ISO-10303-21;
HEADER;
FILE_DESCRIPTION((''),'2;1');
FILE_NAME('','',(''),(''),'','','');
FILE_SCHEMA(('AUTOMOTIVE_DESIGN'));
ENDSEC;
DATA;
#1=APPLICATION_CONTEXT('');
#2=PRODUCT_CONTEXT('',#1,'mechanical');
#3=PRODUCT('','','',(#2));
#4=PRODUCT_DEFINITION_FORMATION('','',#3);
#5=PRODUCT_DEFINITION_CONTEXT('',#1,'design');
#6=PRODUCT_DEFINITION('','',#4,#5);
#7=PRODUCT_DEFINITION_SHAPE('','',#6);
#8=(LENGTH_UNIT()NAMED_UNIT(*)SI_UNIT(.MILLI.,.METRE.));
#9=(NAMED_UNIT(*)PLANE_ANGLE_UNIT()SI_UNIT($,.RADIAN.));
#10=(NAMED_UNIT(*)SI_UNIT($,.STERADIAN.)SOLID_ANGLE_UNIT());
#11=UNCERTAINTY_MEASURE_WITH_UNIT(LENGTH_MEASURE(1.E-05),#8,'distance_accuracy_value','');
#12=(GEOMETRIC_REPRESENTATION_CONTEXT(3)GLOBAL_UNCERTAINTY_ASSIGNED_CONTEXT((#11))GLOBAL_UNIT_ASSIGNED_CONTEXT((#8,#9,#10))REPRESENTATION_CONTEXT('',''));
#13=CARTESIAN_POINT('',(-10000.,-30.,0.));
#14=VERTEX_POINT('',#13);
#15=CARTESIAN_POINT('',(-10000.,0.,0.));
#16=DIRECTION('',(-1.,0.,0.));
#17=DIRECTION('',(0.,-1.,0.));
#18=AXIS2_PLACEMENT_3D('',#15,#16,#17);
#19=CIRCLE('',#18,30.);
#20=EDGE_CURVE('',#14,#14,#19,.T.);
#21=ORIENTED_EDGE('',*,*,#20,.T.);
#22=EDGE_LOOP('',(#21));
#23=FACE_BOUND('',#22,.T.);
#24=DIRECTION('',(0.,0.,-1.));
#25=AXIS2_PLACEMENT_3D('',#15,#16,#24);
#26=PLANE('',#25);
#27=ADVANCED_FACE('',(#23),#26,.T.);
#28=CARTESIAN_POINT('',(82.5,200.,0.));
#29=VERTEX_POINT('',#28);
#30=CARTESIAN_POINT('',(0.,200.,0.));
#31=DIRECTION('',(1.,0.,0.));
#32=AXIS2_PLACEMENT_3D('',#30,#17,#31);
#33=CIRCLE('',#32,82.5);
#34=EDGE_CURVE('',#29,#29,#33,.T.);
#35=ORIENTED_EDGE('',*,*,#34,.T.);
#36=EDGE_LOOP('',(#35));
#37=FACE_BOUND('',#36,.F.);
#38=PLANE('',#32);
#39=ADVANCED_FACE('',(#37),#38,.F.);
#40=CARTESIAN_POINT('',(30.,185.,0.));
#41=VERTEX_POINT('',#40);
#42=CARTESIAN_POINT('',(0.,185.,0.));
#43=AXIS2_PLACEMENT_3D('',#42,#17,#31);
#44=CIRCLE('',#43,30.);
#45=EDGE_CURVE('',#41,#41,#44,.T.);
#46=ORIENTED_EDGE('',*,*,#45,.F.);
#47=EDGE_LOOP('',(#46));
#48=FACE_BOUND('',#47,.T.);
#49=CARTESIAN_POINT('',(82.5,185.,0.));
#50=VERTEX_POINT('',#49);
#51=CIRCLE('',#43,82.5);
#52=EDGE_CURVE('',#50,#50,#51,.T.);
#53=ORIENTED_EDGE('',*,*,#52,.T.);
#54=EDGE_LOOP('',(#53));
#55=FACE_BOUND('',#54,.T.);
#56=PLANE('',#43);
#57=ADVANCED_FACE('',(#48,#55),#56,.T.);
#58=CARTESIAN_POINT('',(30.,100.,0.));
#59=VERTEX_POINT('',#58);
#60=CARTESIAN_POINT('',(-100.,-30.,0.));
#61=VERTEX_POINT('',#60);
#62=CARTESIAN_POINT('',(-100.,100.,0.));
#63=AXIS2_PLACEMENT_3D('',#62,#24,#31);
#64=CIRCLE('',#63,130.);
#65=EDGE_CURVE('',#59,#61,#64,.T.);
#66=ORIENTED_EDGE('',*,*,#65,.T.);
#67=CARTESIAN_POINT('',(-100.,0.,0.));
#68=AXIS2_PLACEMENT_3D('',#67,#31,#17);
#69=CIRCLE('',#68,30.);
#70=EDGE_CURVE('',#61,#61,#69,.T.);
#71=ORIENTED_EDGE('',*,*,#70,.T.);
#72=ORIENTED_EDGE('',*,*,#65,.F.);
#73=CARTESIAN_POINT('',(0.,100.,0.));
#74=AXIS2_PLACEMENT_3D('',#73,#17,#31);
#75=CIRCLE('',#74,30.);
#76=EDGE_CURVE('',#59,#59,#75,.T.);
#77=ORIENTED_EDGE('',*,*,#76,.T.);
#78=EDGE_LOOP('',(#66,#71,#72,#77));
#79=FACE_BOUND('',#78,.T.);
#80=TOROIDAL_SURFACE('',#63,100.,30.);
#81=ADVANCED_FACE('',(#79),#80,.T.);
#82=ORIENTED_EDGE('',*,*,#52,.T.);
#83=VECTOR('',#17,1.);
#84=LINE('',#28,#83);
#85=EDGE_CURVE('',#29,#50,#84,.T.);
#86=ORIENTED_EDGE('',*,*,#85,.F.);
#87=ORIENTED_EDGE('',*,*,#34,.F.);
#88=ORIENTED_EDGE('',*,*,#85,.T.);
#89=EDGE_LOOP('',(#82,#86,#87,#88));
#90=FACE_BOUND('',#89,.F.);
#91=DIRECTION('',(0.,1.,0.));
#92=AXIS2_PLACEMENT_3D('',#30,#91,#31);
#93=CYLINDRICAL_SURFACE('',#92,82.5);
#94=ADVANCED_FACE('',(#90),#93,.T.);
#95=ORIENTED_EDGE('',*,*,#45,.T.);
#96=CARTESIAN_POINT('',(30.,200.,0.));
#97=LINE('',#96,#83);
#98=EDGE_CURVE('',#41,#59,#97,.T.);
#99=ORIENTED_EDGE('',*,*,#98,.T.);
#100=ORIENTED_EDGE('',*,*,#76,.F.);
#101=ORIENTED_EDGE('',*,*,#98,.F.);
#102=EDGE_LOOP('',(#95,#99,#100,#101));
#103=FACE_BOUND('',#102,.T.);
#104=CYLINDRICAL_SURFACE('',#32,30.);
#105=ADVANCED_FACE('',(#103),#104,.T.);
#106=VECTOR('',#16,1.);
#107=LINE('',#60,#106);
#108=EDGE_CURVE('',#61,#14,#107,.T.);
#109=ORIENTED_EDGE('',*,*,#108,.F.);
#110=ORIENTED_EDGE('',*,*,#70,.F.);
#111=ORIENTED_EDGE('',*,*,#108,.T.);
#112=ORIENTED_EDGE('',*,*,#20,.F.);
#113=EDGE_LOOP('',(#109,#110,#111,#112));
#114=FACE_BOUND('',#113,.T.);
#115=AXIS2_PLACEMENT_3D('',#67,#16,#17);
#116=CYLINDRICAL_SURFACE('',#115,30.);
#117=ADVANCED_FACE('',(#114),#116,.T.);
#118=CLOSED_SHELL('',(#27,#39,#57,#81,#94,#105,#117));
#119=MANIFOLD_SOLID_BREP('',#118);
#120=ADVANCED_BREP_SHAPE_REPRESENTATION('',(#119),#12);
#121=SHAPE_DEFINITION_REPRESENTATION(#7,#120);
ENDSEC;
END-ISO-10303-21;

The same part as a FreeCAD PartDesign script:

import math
import FreeCAD as App
import Part
import Sketcher

V = App.Vector

doc = App.newDocument("Part")
body = doc.addObject("PartDesign::Body", "Body")

# Sketch on XZ plane
sketch1 = doc.addObject("Sketcher::SketchObject", "Sketch")
body.addObject(sketch1)
sketch1.AttachmentSupport = (doc.XZ_Plane, [""])
sketch1.MapMode = "FlatFace"
sketch1.AttachmentOffset = App.Placement(V(0, 0, -200), App.Rotation())
sketch1.addGeometry(Part.Circle(V(0, 0, 0), V(0, 0, 1), 30), False)
sketch1.addConstraint(Sketcher.Constraint("Coincident", 0, 3, -1, 1))
sketch1.addConstraint(Sketcher.Constraint("Diameter", 0, 60.0))

# Sketch on XY plane
sketch2 = doc.addObject("Sketcher::SketchObject", "Sketch001")
body.addObject(sketch2)
sketch2.AttachmentSupport = (doc.XY_Plane, [""])
sketch2.MapMode = "FlatFace"
sketch2.addGeometry(Part.LineSegment(V(0, 200, 0), V(0, 100, 0)), False)
sketch2.addGeometry(Part.ArcOfCircle(Part.Circle(V(-100, 100, 0), V(0, 0, 1), 100), math.radians(-90), math.radians(0)), False)
sketch2.addGeometry(Part.LineSegment(V(-100, 0, 0), V(-10000, 0, 0)), False)
sketch2.addConstraint(Sketcher.Constraint("Tangent", 0, 2, 1, 2))
sketch2.addConstraint(Sketcher.Constraint("Tangent", 1, 1, 2, 1))
sketch2.addConstraint(Sketcher.Constraint("Vertical", 0))
sketch2.addConstraint(Sketcher.Constraint("Horizontal", 2))
sketch2.addConstraint(Sketcher.Constraint("PointOnObject", 0, 1, -2))
sketch2.addConstraint(Sketcher.Constraint("PointOnObject", 1, 1, -1))
sketch2.addConstraint(Sketcher.Constraint("Radius", 1, 100.0))
sketch2.addConstraint(Sketcher.Constraint("DistanceX", 2, 2, 2, 1, 9900.0))
sketch2.addConstraint(Sketcher.Constraint("DistanceY", 0, 2, 0, 1, 100.0))
doc.recompute()

additivepipe = doc.addObject("PartDesign::AdditivePipe", "AdditivePipe")
body.addObject(additivepipe)
additivepipe.Profile = sketch1
additivepipe.Spine = (sketch2, ["Edge1", "Edge2", "Edge3"])

# Sketch on XZ plane
sketch3 = doc.addObject("Sketcher::SketchObject", "Sketch002")
body.addObject(sketch3)
sketch3.AttachmentSupport = (doc.XZ_Plane, [""])
sketch3.MapMode = "FlatFace"
sketch3.AttachmentOffset = App.Placement(V(0, 0, -200), App.Rotation())
sketch3.addGeometry(Part.Circle(V(0, 0, 0), V(0, 0, 1), 82), False)
sketch3.addGeometry(Part.Circle(V(0, 0, 0), V(0, 0, 1), 30), False)
sketch3.addConstraint(Sketcher.Constraint("Coincident", 0, 3, -1, 1))
sketch3.addConstraint(Sketcher.Constraint("Coincident", 1, 3, -1, 1))
sketch3.addConstraint(Sketcher.Constraint("Diameter", 0, 165.0))
sketch3.addConstraint(Sketcher.Constraint("Diameter", 1, 60.0))
pad1 = doc.addObject("PartDesign::Pad", "Pad")
body.addObject(pad1)
pad1.Profile = sketch3
pad1.Length = 15

doc.recompute()
